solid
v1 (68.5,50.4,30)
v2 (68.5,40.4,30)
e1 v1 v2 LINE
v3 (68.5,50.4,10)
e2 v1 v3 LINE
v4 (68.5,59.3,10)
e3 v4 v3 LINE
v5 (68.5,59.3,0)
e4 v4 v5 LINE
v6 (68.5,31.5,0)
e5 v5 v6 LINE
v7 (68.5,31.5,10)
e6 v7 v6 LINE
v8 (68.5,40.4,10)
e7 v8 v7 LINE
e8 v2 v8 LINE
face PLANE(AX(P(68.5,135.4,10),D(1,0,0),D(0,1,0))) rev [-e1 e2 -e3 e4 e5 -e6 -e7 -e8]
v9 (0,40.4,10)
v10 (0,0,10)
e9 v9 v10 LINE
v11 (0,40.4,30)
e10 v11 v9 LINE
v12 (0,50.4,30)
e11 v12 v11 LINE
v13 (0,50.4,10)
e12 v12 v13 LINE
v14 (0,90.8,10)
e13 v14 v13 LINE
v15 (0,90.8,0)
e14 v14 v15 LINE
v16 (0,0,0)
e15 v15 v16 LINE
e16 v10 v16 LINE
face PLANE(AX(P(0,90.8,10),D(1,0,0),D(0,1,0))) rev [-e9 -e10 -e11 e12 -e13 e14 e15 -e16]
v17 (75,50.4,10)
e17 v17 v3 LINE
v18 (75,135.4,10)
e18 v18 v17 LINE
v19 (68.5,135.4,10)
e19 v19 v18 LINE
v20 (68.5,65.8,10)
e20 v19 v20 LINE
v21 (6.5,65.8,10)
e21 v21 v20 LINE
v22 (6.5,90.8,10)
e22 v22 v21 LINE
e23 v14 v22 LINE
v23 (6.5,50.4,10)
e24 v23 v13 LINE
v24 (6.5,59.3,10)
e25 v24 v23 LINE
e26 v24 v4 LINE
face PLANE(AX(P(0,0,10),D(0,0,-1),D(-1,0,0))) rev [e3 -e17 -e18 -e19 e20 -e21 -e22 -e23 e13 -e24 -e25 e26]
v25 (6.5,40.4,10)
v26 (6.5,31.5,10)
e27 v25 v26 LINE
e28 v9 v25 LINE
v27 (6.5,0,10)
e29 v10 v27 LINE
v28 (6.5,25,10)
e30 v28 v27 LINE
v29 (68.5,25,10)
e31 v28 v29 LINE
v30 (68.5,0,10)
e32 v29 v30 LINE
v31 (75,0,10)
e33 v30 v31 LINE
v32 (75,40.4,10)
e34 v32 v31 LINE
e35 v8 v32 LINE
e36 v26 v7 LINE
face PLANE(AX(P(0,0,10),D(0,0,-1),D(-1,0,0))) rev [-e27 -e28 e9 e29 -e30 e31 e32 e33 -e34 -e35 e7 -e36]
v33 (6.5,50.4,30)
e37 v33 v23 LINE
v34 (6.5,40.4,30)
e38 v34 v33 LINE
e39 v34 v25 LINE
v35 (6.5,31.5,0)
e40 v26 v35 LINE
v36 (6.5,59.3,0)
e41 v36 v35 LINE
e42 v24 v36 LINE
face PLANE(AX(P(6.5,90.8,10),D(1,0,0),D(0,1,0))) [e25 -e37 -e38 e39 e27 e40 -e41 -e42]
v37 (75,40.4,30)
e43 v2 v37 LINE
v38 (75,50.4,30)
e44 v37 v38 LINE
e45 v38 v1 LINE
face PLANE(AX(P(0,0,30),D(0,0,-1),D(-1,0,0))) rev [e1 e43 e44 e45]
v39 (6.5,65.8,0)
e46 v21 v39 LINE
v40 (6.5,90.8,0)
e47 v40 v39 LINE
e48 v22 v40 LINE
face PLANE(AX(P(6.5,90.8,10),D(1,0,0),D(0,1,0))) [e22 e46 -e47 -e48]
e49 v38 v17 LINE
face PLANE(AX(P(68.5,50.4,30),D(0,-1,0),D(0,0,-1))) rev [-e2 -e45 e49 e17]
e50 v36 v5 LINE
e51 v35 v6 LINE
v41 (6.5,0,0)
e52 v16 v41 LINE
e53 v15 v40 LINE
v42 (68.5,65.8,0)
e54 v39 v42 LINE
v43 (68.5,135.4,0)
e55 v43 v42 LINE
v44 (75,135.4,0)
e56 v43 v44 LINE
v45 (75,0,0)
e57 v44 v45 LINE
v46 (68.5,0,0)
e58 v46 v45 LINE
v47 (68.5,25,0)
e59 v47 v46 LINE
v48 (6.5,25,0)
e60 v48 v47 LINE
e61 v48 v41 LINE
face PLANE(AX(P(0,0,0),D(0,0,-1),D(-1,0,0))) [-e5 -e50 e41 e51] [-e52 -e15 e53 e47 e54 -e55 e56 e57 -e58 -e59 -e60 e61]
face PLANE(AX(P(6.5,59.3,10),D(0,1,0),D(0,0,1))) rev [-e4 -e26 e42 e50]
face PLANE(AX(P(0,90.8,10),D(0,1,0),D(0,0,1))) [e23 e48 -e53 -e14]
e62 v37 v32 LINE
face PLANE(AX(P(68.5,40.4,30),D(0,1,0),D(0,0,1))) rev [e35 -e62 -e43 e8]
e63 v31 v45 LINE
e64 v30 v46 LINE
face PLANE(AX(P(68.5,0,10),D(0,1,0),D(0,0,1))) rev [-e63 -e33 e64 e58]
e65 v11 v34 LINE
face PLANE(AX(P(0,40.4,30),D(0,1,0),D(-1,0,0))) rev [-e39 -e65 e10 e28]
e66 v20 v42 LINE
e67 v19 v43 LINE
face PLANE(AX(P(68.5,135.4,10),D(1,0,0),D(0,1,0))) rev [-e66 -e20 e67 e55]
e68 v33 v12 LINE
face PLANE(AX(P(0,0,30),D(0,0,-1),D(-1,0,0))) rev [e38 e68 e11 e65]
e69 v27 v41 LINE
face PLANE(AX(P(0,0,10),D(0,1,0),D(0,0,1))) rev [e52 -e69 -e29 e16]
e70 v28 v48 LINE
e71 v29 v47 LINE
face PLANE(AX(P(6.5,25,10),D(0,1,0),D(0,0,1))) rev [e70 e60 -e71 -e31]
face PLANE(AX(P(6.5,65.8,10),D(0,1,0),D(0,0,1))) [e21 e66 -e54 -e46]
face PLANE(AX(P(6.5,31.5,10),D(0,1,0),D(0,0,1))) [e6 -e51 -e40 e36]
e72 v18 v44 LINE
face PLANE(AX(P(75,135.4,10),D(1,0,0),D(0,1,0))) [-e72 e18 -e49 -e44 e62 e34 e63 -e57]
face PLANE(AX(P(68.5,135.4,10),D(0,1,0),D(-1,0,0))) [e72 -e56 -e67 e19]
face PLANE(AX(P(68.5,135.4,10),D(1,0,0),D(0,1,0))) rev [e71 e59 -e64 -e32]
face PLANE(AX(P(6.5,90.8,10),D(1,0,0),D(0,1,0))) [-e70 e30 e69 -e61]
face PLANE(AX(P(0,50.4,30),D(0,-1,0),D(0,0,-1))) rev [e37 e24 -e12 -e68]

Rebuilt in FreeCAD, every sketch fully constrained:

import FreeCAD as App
import Part
import Sketcher

doc = App.newDocument("Part")
params = doc.addObject("Spreadsheet::Sheet", "Params")
for row, (alias, value) in enumerate([
    ("sketch1_width", "62 mm"),
    ("sketch1_height", "25 mm"),
    ("sketch1_width2", "6.5 mm"),
    ("sketch1_height2", "90.8 mm"),
    ("sketch1_height3", "135.4 mm"),
    ("pad1_length", "10 mm"),
    ("sketch2_height", "10 mm"),
    ("sketch2_width", "6.5 mm"),
    ("pad2_length", "20 mm"),
], start=1):
    params.set(f"A{row}", alias)
    params.set(f"B{row}", "=" + value)
    params.setAlias(f"B{row}", alias)

body = doc.addObject("PartDesign::Body", "Body")

# Sketch on XY plane
sketch1 = body.newObject("Sketcher::SketchObject", "Sketch")
sketch1.AttachmentSupport = (doc.getObject("XY_Plane"), [""])
sketch1.MapMode = "FlatFace"
sketch1.addGeometry(Part.LineSegment(App.Vector(0, 91, 0), App.Vector(0, 0, 0)), False)
sketch1.addGeometry(Part.LineSegment(App.Vector(0, 0, 0), App.Vector(6, 0, 0)), False)
sketch1.addGeometry(Part.LineSegment(App.Vector(6, 0, 0), App.Vector(6, 25, 0)), False)
sketch1.addGeometry(Part.LineSegment(App.Vector(6, 25, 0), App.Vector(68, 25, 0)), False)
sketch1.addGeometry(Part.LineSegment(App.Vector(68, 25, 0), App.Vector(68, 0, 0)), False)
sketch1.addGeometry(Part.LineSegment(App.Vector(68, 0, 0), App.Vector(75, 0, 0)), False)
sketch1.addGeometry(Part.LineSegment(App.Vector(75, 0, 0), App.Vector(75, 135, 0)), False)
sketch1.addGeometry(Part.LineSegment(App.Vector(75, 135, 0), App.Vector(68, 135, 0)), False)
sketch1.addGeometry(Part.LineSegment(App.Vector(68, 135, 0), App.Vector(68, 66, 0)), False)
sketch1.addGeometry(Part.LineSegment(App.Vector(68, 66, 0), App.Vector(6, 66, 0)), False)
sketch1.addGeometry(Part.LineSegment(App.Vector(6, 66, 0), App.Vector(6, 91, 0)), False)
sketch1.addGeometry(Part.LineSegment(App.Vector(6, 91, 0), App.Vector(0, 91, 0)), False)
sketch1.addGeometry(Part.LineSegment(App.Vector(68, 59, 0), App.Vector(68, 32, 0)), False)
sketch1.addGeometry(Part.LineSegment(App.Vector(68, 32, 0), App.Vector(6, 32, 0)), False)
sketch1.addGeometry(Part.LineSegment(App.Vector(6, 32, 0), App.Vector(6, 59, 0)), False)
sketch1.addGeometry(Part.LineSegment(App.Vector(6, 59, 0), App.Vector(68, 59, 0)), False)
sketch1.addConstraint(Sketcher.Constraint("Coincident", 0, 2, 1, 1))
sketch1.addConstraint(Sketcher.Constraint("Coincident", 1, 2, 2, 1))
sketch1.addConstraint(Sketcher.Constraint("Coincident", 2, 2, 3, 1))
sketch1.addConstraint(Sketcher.Constraint("Coincident", 3, 2, 4, 1))
sketch1.addConstraint(Sketcher.Constraint("Coincident", 4, 2, 5, 1))
sketch1.addConstraint(Sketcher.Constraint("Coincident", 5, 2, 6, 1))
sketch1.addConstraint(Sketcher.Constraint("Coincident", 6, 2, 7, 1))
sketch1.addConstraint(Sketcher.Constraint("Coincident", 7, 2, 8, 1))
sketch1.addConstraint(Sketcher.Constraint("Coincident", 8, 2, 9, 1))
sketch1.addConstraint(Sketcher.Constraint("Coincident", 9, 2, 10, 1))
sketch1.addConstraint(Sketcher.Constraint("Coincident", 10, 2, 11, 1))
sketch1.addConstraint(Sketcher.Constraint("Coincident", 11, 2, 0, 1))
sketch1.addConstraint(Sketcher.Constraint("Coincident", 12, 2, 13, 1))
sketch1.addConstraint(Sketcher.Constraint("Coincident", 13, 2, 14, 1))
sketch1.addConstraint(Sketcher.Constraint("Coincident", 14, 2, 15, 1))
sketch1.addConstraint(Sketcher.Constraint("Coincident", 15, 2, 12, 1))
sketch1.addConstraint(Sketcher.Constraint("Vertical", 0))
sketch1.addConstraint(Sketcher.Constraint("Horizontal", 1))
sketch1.addConstraint(Sketcher.Constraint("Vertical", 2))
sketch1.addConstraint(Sketcher.Constraint("Horizontal", 3))
sketch1.addConstraint(Sketcher.Constraint("Vertical", 4))
sketch1.addConstraint(Sketcher.Constraint("Horizontal", 5))
sketch1.addConstraint(Sketcher.Constraint("Vertical", 6))
sketch1.addConstraint(Sketcher.Constraint("Horizontal", 7))
sketch1.addConstraint(Sketcher.Constraint("Vertical", 8))
sketch1.addConstraint(Sketcher.Constraint("Horizontal", 9))
sketch1.addConstraint(Sketcher.Constraint("Vertical", 10))
sketch1.addConstraint(Sketcher.Constraint("Horizontal", 11))
sketch1.addConstraint(Sketcher.Constraint("Vertical", 12))
sketch1.addConstraint(Sketcher.Constraint("Horizontal", 13))
sketch1.addConstraint(Sketcher.Constraint("Vertical", 14))
sketch1.addConstraint(Sketcher.Constraint("Horizontal", 15))
sketch1.addConstraint(Sketcher.Constraint("Coincident", 0, 2, -1, 1))
sketch1.addConstraint(Sketcher.Constraint("PointOnObject", 4, 2, -1))
sketch1.addConstraint(Sketcher.Constraint("Vertical", 4, 2, 7, 2))
sketch1.addConstraint(Sketcher.Constraint("Vertical", 2, 2, 9, 2))
sketch1.addConstraint(Sketcher.Constraint("Vertical", 8, 2, 12, 2))
sketch1.addConstraint(Sketcher.Constraint("Vertical", 10, 2, 13, 2))
sketch1.addConstraint(Sketcher.Constraint("Equal", 1, 5))
sketch1.addConstraint(Sketcher.Constraint("Equal", 4, 10))
sketch1.addConstraint(Sketcher.Constraint("DistanceX", 3, 1, 3, 2, 62.0))
sketch1.addConstraint(Sketcher.Constraint("DistanceY", 2, 1, 2, 2, 25.0))
sketch1.addConstraint(Sketcher.Constraint("DistanceX", 1, 1, 1, 2, 6.5))
sketch1.addConstraint(Sketcher.Constraint("DistanceY", 0, 2, 0, 1, 90.8))
sketch1.addConstraint(Sketcher.Constraint("DistanceY", 6, 1, 6, 2, 135.4))
sketch1.addConstraint(Sketcher.Constraint("DistanceY", 12, 2, 12, 1, 27.8))
sketch1.addConstraint(Sketcher.Constraint("DistanceY", -1, 1, 12, 2, 31.5))
sketch1.setExpression("Constraints[40]", "Params.sketch1_width")
sketch1.setExpression("Constraints[41]", "Params.sketch1_height")
sketch1.setExpression("Constraints[42]", "Params.sketch1_width2")
sketch1.setExpression("Constraints[43]", "Params.sketch1_height2")
sketch1.setExpression("Constraints[44]", "Params.sketch1_height3")
pad1 = body.newObject("PartDesign::Pad", "Pad")
pad1.Profile = sketch1
pad1.setExpression("Length", "Params.pad1_length")

# Sketch on XY plane
sketch2 = body.newObject("Sketcher::SketchObject", "Sketch001")
sketch2.AttachmentSupport = (doc.getObject("XY_Plane"), [""])
sketch2.MapMode = "FlatFace"
sketch2.AttachmentOffset = App.Placement(App.Vector(0, 0, 10), App.Rotation())
sketch2.addGeometry(Part.LineSegment(App.Vector(0, 50, 0), App.Vector(0, 40, 0)), False)
sketch2.addGeometry(Part.LineSegment(App.Vector(0, 40, 0), App.Vector(6, 40, 0)), False)
sketch2.addGeometry(Part.LineSegment(App.Vector(6, 40, 0), App.Vector(6, 50, 0)), False)
sketch2.addGeometry(Part.LineSegment(App.Vector(6, 50, 0), App.Vector(0, 50, 0)), False)
sketch2.addGeometry(Part.LineSegment(App.Vector(68, 50, 0), App.Vector(68, 40, 0)), False)
sketch2.addGeometry(Part.LineSegment(App.Vector(68, 40, 0), App.Vector(75, 40, 0)), False)
sketch2.addGeometry(Part.LineSegment(App.Vector(75, 40, 0), App.Vector(75, 50, 0)), False)
sketch2.addGeometry(Part.LineSegment(App.Vector(75, 50, 0), App.Vector(68, 50, 0)), False)
sketch2.addConstraint(Sketcher.Constraint("Coincident", 0, 2, 1, 1))
sketch2.addConstraint(Sketcher.Constraint("Coincident", 1, 2, 2, 1))
sketch2.addConstraint(Sketcher.Constraint("Coincident", 2, 2, 3, 1))
sketch2.addConstraint(Sketcher.Constraint("Coincident", 3, 2, 0, 1))
sketch2.addConstraint(Sketcher.Constraint("Coincident", 4, 2, 5, 1))
sketch2.addConstraint(Sketcher.Constraint("Coincident", 5, 2, 6, 1))
sketch2.addConstraint(Sketcher.Constraint("Coincident", 6, 2, 7, 1))
sketch2.addConstraint(Sketcher.Constraint("Coincident", 7, 2, 4, 1))
sketch2.addConstraint(Sketcher.Constraint("Vertical", 0))
sketch2.addConstraint(Sketcher.Constraint("Horizontal", 1))
sketch2.addConstraint(Sketcher.Constraint("Vertical", 2))
sketch2.addConstraint(Sketcher.Constraint("Horizontal", 3))
sketch2.addConstraint(Sketcher.Constraint("Vertical", 4))
sketch2.addConstraint(Sketcher.Constraint("Horizontal", 5))
sketch2.addConstraint(Sketcher.Constraint("Vertical", 6))
sketch2.addConstraint(Sketcher.Constraint("Horizontal", 7))
sketch2.addConstraint(Sketcher.Constraint("PointOnObject", 0, 2, -2))
sketch2.addConstraint(Sketcher.Constraint("Horizontal", 1, 2, 4, 2))
sketch2.addConstraint(Sketcher.Constraint("Horizontal", 3, 2, 6, 2))
sketch2.addConstraint(Sketcher.Constraint("Equal", 3, 5))
sketch2.addConstraint(Sketcher.Constraint("DistanceY", 0, 2, 0, 1, 10.0))
sketch2.addConstraint(Sketcher.Constraint("DistanceX", 1, 1, 1, 2, 6.5))
sketch2.addConstraint(Sketcher.Constraint("DistanceX", -1, 1, 5, 2, 75.0))
sketch2.addConstraint(Sketcher.Constraint("DistanceY", -1, 1, 0, 2, 40.4))
sketch2.setExpression("Constraints[20]", "Params.sketch2_height")
sketch2.setExpression("Constraints[21]", "Params.sketch2_width")
pad2 = body.newObject("PartDesign::Pad", "Pad001")
pad2.Profile = sketch2
pad2.setExpression("Length", "Params.pad2_length")

doc.recompute()
